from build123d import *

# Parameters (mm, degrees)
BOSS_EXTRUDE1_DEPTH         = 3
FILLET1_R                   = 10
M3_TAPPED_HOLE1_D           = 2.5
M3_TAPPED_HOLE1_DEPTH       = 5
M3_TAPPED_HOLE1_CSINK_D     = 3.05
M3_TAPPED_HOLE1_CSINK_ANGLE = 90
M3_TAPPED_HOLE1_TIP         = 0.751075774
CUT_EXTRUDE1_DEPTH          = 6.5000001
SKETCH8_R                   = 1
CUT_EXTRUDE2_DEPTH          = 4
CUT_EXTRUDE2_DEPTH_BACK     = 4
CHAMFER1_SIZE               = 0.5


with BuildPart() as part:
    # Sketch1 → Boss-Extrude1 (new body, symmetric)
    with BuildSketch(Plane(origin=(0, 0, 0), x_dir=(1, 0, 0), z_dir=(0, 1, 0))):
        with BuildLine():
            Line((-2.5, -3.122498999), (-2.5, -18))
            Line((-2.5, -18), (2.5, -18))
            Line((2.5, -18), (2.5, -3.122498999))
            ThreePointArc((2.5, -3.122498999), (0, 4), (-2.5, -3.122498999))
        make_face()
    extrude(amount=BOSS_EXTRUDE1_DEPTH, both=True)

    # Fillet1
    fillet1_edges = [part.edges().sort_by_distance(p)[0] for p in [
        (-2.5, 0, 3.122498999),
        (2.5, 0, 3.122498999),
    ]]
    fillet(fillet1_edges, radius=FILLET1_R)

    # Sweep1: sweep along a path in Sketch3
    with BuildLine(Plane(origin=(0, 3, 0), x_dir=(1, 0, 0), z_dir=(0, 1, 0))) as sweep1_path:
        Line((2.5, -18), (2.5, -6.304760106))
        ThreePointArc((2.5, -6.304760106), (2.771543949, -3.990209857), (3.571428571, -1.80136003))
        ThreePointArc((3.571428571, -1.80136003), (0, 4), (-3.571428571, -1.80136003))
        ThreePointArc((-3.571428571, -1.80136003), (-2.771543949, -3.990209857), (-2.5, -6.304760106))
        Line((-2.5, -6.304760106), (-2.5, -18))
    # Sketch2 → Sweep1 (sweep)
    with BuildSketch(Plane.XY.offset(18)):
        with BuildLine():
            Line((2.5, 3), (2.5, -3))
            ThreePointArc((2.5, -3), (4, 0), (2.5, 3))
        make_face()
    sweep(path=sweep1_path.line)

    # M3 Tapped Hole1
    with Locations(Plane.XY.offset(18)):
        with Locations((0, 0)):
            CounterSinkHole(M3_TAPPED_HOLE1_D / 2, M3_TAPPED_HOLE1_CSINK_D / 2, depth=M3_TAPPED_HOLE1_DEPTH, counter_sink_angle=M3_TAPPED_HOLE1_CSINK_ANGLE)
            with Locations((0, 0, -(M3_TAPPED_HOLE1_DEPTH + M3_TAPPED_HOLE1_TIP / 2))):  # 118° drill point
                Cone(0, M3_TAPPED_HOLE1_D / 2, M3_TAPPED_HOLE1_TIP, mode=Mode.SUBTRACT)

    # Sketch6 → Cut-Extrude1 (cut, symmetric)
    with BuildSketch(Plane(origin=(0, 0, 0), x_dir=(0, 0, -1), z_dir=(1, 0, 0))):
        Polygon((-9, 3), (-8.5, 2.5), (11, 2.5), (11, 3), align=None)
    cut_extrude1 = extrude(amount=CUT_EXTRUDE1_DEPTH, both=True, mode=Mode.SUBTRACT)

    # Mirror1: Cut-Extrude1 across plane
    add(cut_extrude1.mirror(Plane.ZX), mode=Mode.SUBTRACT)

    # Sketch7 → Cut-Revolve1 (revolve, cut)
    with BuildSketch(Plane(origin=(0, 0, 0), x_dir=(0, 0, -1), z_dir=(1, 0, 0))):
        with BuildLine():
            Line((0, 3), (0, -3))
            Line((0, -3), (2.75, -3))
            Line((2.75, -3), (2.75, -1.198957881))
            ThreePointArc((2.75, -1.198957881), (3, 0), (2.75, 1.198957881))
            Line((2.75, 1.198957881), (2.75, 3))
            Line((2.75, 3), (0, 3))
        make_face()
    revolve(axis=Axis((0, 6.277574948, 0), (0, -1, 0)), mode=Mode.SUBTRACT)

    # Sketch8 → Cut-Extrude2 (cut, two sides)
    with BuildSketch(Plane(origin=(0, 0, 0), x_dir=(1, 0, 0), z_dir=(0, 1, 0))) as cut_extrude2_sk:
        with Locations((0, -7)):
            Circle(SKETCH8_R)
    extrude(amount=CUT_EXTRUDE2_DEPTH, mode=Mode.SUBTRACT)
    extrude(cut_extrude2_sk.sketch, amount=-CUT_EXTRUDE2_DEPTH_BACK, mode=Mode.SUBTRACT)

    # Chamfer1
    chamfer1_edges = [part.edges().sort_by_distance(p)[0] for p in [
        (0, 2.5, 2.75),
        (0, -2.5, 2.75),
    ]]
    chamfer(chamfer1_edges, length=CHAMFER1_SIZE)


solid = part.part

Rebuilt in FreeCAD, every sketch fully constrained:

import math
import FreeCAD as App
import Part
import Sketcher
Q = App.Units.Quantity


def edges_at(feature, points):
    """Names of the edges that pass closest to the given points."""
    edges = feature.Shape.Edges
    near = lambda p: min(range(len(edges)), key=lambda i: edges[i].distToShape(Part.Vertex(*p))[0])
    return sorted({f"Edge{near(p) + 1}" for p in points})


def add_polygon(sketch, points):
    """Adds a closed chain of lines whose ends are joined by coincident constraints."""
    first, n = sketch.GeometryCount, len(points)
    for a, b in zip(points, points[1:] + points[:1]):
        sketch.addGeometry(Part.LineSegment(App.Vector(*a, 0), App.Vector(*b, 0)), False)
    for i in range(n):
        sketch.addConstraint(Sketcher.Constraint("Coincident", first + i, 2, first + (i + 1) % n, 1))

doc = App.newDocument("Part")
params = doc.addObject("Spreadsheet::Sheet", "Params")
for row, (alias, value) in enumerate([
    ("sketch1_radius", "4 mm"),
    ("sketch1_width", "5 mm"),
    ("pad1_length", "6 mm"),
    ("fillet_radius", "10 mm"),
    ("sketch2_height", "6 mm"),
    ("sketch2_radius", "3.75 mm"),
    ("sketch3_radius", "10 mm"),
    ("sketch3_radius2", "4 mm"),
    ("sketch4_diameter", "2.5 mm"),
    ("hole_diameter", "2.5 mm"),
    ("hole_depth", "5 mm"),
    ("hole_csink_diameter", "3.05 mm"),
    ("sketch5_height", "20 mm"),
    ("sketch5_width", "0.5 mm"),
    ("pocket1_length", "13 mm"),
    ("sketch6_radius", "3 mm"),
    ("sketch6_width", "6 mm"),
    ("sketch6_height", "2.75 mm"),
    ("groove_angle", "360 deg"),
    ("sketch7_diameter", "2 mm"),
    ("chamfer_size", "0.5 mm"),
], start=1):
    params.set(f"A{row}", alias)
    params.set(f"B{row}", "=" + value)
    params.setAlias(f"B{row}", alias)

body = doc.addObject("PartDesign::Body", "Body")

# Sketch on XZ plane
sketch1 = body.newObject("Sketcher::SketchObject", "Sketch")
sketch1.AttachmentSupport = (doc.getObject("XZ_Plane"), [""])
sketch1.MapMode = "FlatFace"
sketch1.addGeometry([
    Part.LineSegment(App.Vector(-2.5, 3.1, 0), App.Vector(-2.5, 18, 0)),
    Part.LineSegment(App.Vector(-2.5, 18, 0), App.Vector(2.5, 18, 0)),
    Part.LineSegment(App.Vector(2.5, 18, 0), App.Vector(2.5, 3.1, 0)),
    Part.ArcOfCircle(Part.Circle(App.Vector(0, 0, 0), App.Vector(0, 0, 1), 4), math.radians(129), math.radians(411)),
], False)
sketch1.addConstraint([
    Sketcher.Constraint("Coincident", 0, 2, 1, 1),
    Sketcher.Constraint("Coincident", 1, 2, 2, 1),
    Sketcher.Constraint("Coincident", 2, 2, 3, 2),
    Sketcher.Constraint("Coincident", 3, 1, 0, 1),
    Sketcher.Constraint("Vertical", 0),
    Sketcher.Constraint("Horizontal", 1),
    Sketcher.Constraint("Vertical", 2),
    Sketcher.Constraint("Coincident", 3, 3, -1, 1),
    Sketcher.Constraint("Horizontal", 2, 2, 3, 1),
    Sketcher.Constraint("Radius", 3, 4.0),
    Sketcher.Constraint("DistanceX", 1, 1, 1, 2, 5.0),
    Sketcher.Constraint("DistanceY", -1, 1, 0, 2, 18.0),
])
sketch1.setExpression("Constraints[9]", "Params.sketch1_radius")
sketch1.setExpression("Constraints[10]", "Params.sketch1_width")
pad1 = body.newObject("PartDesign::Pad", "Pad")
pad1.Profile = sketch1
pad1.setExpression("Length", "Params.pad1_length")
pad1.Midplane = True
doc.recompute()

fillet = body.newObject("PartDesign::Fillet", "Fillet")
fillet.Base = (pad1, edges_at(pad1, [(-2.5, 0, 3.122), (2.5, 0, 3.122)]))
fillet.setExpression("Radius", "Params.fillet_radius")

# Sketch on XY plane
sketch2 = body.newObject("Sketcher::SketchObject", "Sketch001")
sketch2.AttachmentSupport = (doc.getObject("XY_Plane"), [""])
sketch2.MapMode = "FlatFace"
sketch2.AttachmentOffset = App.Placement(App.Vector(0, 0, 18), App.Rotation())
sketch2.addGeometry([
    Part.LineSegment(App.Vector(2.5, 3, 0), App.Vector(2.5, -3, 0)),
    Part.ArcOfCircle(Part.Circle(App.Vector(0.2, 0, 0), App.Vector(0, 0, 1), 3.8), math.radians(-53), math.radians(53)),
], False)
sketch2.addConstraint([
    Sketcher.Constraint("Coincident", 0, 1, 1, 2),
    Sketcher.Constraint("Coincident", 1, 1, 0, 2),
    Sketcher.Constraint("Vertical", 0),
    Sketcher.Constraint("PointOnObject", 1, 3, -1),
    Sketcher.Constraint("DistanceY", 0, 2, 0, 1, 6.0),
    Sketcher.Constraint("Radius", 1, 3.75),
    Sketcher.Constraint("DistanceX", -1, 1, 0, 1, 2.5),
])
sketch2.setExpression("Constraints[4]", "Params.sketch2_height")
sketch2.setExpression("Constraints[5]", "Params.sketch2_radius")

# Sketch on XZ plane
sketch3 = body.newObject("Sketcher::SketchObject", "Sketch002")
sketch3.AttachmentSupport = (doc.getObject("XZ_Plane"), [""])
sketch3.MapMode = "FlatFace"
sketch3.AttachmentOffset = App.Placement(App.Vector(0, 0, -3), App.Rotation())
sketch3.addGeometry([
    Part.LineSegment(App.Vector(2.5, 18, 0), App.Vector(2.5, 6.3, 0)),  # 0
    Part.ArcOfCircle(Part.Circle(App.Vector(12.5, 6.3, 0), App.Vector(0, 0, 1), 10), math.radians(-180), math.radians(-153)),  # 1
    Part.ArcOfCircle(Part.Circle(App.Vector(0, 0, 0), App.Vector(0, 0, 1), 4), math.radians(153), math.radians(387)),  # 2
    Part.ArcOfCircle(Part.Circle(App.Vector(-12.5, 6.3, 0), App.Vector(0, 0, 1), 10), math.radians(-27), math.radians(0)),  # 3
    Part.LineSegment(App.Vector(-2.5, 6.3, 0), App.Vector(-2.5, 18, 0)),  # 4
], False)
sketch3.addConstraint([
    Sketcher.Constraint("Tangent", 0, 2, 1, 1),
    Sketcher.Constraint("Tangent", 1, 2, 2, 2),
    Sketcher.Constraint("Tangent", 2, 1, 3, 1),
    Sketcher.Constraint("Tangent", 3, 2, 4, 1),
    Sketcher.Constraint("Vertical", 0),
    Sketcher.Constraint("Vertical", 4),
    Sketcher.Constraint("Coincident", 2, 3, -1, 1),
    Sketcher.Constraint("Equal", 1, 3),
    Sketcher.Constraint("Symmetric", 0, 1, 4, 2, -2),
    Sketcher.Constraint("Radius", 1, 10.0),
    Sketcher.Constraint("Radius", 2, 4.0),
    Sketcher.Constraint("DistanceY", -1, 1, 0, 1, 18.0),
    Sketcher.Constraint("DistanceX", 3, 3, 1, 3, 25.0),
])
sketch3.setExpression("Constraints[9]", "Params.sketch3_radius")
sketch3.setExpression("Constraints[10]", "Params.sketch3_radius2")
doc.recompute()

additivepipe = body.newObject("PartDesign::AdditivePipe", "AdditivePipe")
additivepipe.Profile = sketch2
additivepipe.Spine = (sketch3, ["Edge1", "Edge2", "Edge3", "Edge4", "Edge5"])

# Sketch on XY plane
sketch4 = body.newObject("Sketcher::SketchObject", "Sketch003")
sketch4.AttachmentSupport = (doc.getObject("XY_Plane"), [""])
sketch4.MapMode = "FlatFace"
sketch4.AttachmentOffset = App.Placement(App.Vector(0, 0, 18), App.Rotation())
sketch4.addGeometry(Part.Circle(App.Vector(0, 0, 0), App.Vector(0, 0, 1), 1.2), False)
sketch4.addConstraint([
    Sketcher.Constraint("Coincident", 0, 3, -1, 1),
    Sketcher.Constraint("Diameter", 0, 2.5),
])
sketch4.setExpression("Constraints[1]", "Params.sketch4_diameter")
doc.recompute()
hole = body.newObject("PartDesign::Hole", "Hole")
hole.Profile = sketch4
hole.ThreadType = "None"
hole.setExpression("Diameter", "Params.hole_diameter")
hole.DepthType = "Dimension"
hole.setExpression("Depth", "Params.hole_depth")
hole.DrillPoint = "Angled"
hole.DrillPointAngle = 118
hole.HoleCutType = "Countersink"
hole.setExpression("HoleCutDiameter", "Params.hole_csink_diameter")
hole.HoleCutCountersinkAngle = 90

# Sketch on YZ plane
sketch5 = body.newObject("Sketcher::SketchObject", "Sketch004")
sketch5.AttachmentSupport = (doc.getObject("YZ_Plane"), [""])
sketch5.MapMode = "FlatFace"
add_polygon(sketch5, [(3, 9), (2.5, 8.5), (2.5, -11), (3, -11)])  # lines 0-3
sketch5.addConstraint([
    Sketcher.Constraint("Vertical", 1),
    Sketcher.Constraint("Horizontal", 2),
    Sketcher.Constraint("Vertical", 3),
    Sketcher.Constraint("DistanceY", 3, 1, 3, 2, 20.0),
    Sketcher.Constraint("Angle", 0, Q("-135 deg")),
    Sketcher.Constraint("DistanceX", 2, 1, 2, 2, 0.5),
    Sketcher.Constraint("DistanceY", 1, 2, -1, 1, 11.0),
    Sketcher.Constraint("DistanceX", -1, 1, 2, 2, 3.0),
])
sketch5.setExpression("Constraints[7]", "Params.sketch5_height")
sketch5.setExpression("Constraints[9]", "Params.sketch5_width")
pocket1 = body.newObject("PartDesign::Pocket", "Pocket")
pocket1.Profile = sketch5
pocket1.setExpression("Length", "Params.pocket1_length")
pocket1.Midplane = True
doc.recompute()

mirrored = body.newObject("PartDesign::Mirrored", "Mirrored")
mirrored.Originals = [pocket1]
mirrored.MirrorPlane = (doc.getObject("XZ_Plane"), [""])
body.Tip = mirrored

# Sketch on YZ plane
sketch6 = body.newObject("Sketcher::SketchObject", "Sketch005")
sketch6.AttachmentSupport = (doc.getObject("YZ_Plane"), [""])
sketch6.MapMode = "FlatFace"
sketch6.addGeometry([
    Part.LineSegment(App.Vector(3, 0, 0), App.Vector(-3, 0, 0)),  # 0
    Part.LineSegment(App.Vector(-3, 0, 0), App.Vector(-3, -2.8, 0)),  # 1
    Part.LineSegment(App.Vector(-3, -2.8, 0), App.Vector(-1.2, -2.8, 0)),  # 2
    Part.ArcOfCircle(Part.Circle(App.Vector(0, 0, 0), App.Vector(0, 0, 1), 3), math.radians(-114), math.radians(-66)),  # 3
    Part.LineSegment(App.Vector(1.2, -2.8, 0), App.Vector(3, -2.8, 0)),  # 4
    Part.LineSegment(App.Vector(3, -2.8, 0), App.Vector(3, 0, 0)),  # 5
], False)
sketch6.addConstraint([
    Sketcher.Constraint("Coincident", 0, 2, 1, 1),
    Sketcher.Constraint("Coincident", 1, 2, 2, 1),
    Sketcher.Constraint("Coincident", 2, 2, 3, 1),
    Sketcher.Constraint("Coincident", 3, 2, 4, 1),
    Sketcher.Constraint("Coincident", 4, 2, 5, 1),
    Sketcher.Constraint("Coincident", 5, 2, 0, 1),
    Sketcher.Constraint("Horizontal", 0),
    Sketcher.Constraint("Vertical", 1),
    Sketcher.Constraint("Horizontal", 2),
    Sketcher.Constraint("Horizontal", 4),
    Sketcher.Constraint("Vertical", 5),
    Sketcher.Constraint("Coincident", 3, 3, -1, 1),
    Sketcher.Constraint("Symmetric", 0, 2, 5, 2, -1, 1),
    Sketcher.Constraint("Horizontal", 2, 2, 3, 2),
    Sketcher.Constraint("Radius", 3, 3.0),
    Sketcher.Constraint("DistanceX", 0, 2, 0, 1, 6.0),
    Sketcher.Constraint("DistanceY", 1, 2, 1, 1, 2.75),
])
sketch6.setExpression("Constraints[14]", "Params.sketch6_radius")
sketch6.setExpression("Constraints[15]", "Params.sketch6_width")
sketch6.setExpression("Constraints[16]", "Params.sketch6_height")
groove = body.newObject("PartDesign::Groove", "Groove")
groove.Profile = sketch6
groove.ReferenceAxis = (sketch6, ["H_Axis"])
groove.setExpression("Angle", "Params.groove_angle")

# Sketch on XZ plane
sketch7 = body.newObject("Sketcher::SketchObject", "Sketch006")
sketch7.AttachmentSupport = (doc.getObject("XZ_Plane"), [""])
sketch7.MapMode = "FlatFace"
sketch7.addGeometry(Part.Circle(App.Vector(0, 7, 0), App.Vector(0, 0, 1), 1), False)
sketch7.addConstraint([
    Sketcher.Constraint("PointOnObject", 0, 3, -2),
    Sketcher.Constraint("Diameter", 0, 2.0),
    Sketcher.Constraint("DistanceY", -1, 1, 0, 3, 7.0),
])
sketch7.setExpression("Constraints[1]", "Params.sketch7_diameter")
pocket2 = body.newObject("PartDesign::Pocket", "Pocket001")
pocket2.Profile = sketch7
pocket2.Type = "ThroughAll"
pocket2.Midplane = True
doc.recompute()

chamfer = body.newObject("PartDesign::Chamfer", "Chamfer")
chamfer.Base = (pocket2, edges_at(pocket2, [(0, 2.5, 2.75), (0, -2.5, 2.75)]))
chamfer.setExpression("Size", "Params.chamfer_size")

doc.recompute()
